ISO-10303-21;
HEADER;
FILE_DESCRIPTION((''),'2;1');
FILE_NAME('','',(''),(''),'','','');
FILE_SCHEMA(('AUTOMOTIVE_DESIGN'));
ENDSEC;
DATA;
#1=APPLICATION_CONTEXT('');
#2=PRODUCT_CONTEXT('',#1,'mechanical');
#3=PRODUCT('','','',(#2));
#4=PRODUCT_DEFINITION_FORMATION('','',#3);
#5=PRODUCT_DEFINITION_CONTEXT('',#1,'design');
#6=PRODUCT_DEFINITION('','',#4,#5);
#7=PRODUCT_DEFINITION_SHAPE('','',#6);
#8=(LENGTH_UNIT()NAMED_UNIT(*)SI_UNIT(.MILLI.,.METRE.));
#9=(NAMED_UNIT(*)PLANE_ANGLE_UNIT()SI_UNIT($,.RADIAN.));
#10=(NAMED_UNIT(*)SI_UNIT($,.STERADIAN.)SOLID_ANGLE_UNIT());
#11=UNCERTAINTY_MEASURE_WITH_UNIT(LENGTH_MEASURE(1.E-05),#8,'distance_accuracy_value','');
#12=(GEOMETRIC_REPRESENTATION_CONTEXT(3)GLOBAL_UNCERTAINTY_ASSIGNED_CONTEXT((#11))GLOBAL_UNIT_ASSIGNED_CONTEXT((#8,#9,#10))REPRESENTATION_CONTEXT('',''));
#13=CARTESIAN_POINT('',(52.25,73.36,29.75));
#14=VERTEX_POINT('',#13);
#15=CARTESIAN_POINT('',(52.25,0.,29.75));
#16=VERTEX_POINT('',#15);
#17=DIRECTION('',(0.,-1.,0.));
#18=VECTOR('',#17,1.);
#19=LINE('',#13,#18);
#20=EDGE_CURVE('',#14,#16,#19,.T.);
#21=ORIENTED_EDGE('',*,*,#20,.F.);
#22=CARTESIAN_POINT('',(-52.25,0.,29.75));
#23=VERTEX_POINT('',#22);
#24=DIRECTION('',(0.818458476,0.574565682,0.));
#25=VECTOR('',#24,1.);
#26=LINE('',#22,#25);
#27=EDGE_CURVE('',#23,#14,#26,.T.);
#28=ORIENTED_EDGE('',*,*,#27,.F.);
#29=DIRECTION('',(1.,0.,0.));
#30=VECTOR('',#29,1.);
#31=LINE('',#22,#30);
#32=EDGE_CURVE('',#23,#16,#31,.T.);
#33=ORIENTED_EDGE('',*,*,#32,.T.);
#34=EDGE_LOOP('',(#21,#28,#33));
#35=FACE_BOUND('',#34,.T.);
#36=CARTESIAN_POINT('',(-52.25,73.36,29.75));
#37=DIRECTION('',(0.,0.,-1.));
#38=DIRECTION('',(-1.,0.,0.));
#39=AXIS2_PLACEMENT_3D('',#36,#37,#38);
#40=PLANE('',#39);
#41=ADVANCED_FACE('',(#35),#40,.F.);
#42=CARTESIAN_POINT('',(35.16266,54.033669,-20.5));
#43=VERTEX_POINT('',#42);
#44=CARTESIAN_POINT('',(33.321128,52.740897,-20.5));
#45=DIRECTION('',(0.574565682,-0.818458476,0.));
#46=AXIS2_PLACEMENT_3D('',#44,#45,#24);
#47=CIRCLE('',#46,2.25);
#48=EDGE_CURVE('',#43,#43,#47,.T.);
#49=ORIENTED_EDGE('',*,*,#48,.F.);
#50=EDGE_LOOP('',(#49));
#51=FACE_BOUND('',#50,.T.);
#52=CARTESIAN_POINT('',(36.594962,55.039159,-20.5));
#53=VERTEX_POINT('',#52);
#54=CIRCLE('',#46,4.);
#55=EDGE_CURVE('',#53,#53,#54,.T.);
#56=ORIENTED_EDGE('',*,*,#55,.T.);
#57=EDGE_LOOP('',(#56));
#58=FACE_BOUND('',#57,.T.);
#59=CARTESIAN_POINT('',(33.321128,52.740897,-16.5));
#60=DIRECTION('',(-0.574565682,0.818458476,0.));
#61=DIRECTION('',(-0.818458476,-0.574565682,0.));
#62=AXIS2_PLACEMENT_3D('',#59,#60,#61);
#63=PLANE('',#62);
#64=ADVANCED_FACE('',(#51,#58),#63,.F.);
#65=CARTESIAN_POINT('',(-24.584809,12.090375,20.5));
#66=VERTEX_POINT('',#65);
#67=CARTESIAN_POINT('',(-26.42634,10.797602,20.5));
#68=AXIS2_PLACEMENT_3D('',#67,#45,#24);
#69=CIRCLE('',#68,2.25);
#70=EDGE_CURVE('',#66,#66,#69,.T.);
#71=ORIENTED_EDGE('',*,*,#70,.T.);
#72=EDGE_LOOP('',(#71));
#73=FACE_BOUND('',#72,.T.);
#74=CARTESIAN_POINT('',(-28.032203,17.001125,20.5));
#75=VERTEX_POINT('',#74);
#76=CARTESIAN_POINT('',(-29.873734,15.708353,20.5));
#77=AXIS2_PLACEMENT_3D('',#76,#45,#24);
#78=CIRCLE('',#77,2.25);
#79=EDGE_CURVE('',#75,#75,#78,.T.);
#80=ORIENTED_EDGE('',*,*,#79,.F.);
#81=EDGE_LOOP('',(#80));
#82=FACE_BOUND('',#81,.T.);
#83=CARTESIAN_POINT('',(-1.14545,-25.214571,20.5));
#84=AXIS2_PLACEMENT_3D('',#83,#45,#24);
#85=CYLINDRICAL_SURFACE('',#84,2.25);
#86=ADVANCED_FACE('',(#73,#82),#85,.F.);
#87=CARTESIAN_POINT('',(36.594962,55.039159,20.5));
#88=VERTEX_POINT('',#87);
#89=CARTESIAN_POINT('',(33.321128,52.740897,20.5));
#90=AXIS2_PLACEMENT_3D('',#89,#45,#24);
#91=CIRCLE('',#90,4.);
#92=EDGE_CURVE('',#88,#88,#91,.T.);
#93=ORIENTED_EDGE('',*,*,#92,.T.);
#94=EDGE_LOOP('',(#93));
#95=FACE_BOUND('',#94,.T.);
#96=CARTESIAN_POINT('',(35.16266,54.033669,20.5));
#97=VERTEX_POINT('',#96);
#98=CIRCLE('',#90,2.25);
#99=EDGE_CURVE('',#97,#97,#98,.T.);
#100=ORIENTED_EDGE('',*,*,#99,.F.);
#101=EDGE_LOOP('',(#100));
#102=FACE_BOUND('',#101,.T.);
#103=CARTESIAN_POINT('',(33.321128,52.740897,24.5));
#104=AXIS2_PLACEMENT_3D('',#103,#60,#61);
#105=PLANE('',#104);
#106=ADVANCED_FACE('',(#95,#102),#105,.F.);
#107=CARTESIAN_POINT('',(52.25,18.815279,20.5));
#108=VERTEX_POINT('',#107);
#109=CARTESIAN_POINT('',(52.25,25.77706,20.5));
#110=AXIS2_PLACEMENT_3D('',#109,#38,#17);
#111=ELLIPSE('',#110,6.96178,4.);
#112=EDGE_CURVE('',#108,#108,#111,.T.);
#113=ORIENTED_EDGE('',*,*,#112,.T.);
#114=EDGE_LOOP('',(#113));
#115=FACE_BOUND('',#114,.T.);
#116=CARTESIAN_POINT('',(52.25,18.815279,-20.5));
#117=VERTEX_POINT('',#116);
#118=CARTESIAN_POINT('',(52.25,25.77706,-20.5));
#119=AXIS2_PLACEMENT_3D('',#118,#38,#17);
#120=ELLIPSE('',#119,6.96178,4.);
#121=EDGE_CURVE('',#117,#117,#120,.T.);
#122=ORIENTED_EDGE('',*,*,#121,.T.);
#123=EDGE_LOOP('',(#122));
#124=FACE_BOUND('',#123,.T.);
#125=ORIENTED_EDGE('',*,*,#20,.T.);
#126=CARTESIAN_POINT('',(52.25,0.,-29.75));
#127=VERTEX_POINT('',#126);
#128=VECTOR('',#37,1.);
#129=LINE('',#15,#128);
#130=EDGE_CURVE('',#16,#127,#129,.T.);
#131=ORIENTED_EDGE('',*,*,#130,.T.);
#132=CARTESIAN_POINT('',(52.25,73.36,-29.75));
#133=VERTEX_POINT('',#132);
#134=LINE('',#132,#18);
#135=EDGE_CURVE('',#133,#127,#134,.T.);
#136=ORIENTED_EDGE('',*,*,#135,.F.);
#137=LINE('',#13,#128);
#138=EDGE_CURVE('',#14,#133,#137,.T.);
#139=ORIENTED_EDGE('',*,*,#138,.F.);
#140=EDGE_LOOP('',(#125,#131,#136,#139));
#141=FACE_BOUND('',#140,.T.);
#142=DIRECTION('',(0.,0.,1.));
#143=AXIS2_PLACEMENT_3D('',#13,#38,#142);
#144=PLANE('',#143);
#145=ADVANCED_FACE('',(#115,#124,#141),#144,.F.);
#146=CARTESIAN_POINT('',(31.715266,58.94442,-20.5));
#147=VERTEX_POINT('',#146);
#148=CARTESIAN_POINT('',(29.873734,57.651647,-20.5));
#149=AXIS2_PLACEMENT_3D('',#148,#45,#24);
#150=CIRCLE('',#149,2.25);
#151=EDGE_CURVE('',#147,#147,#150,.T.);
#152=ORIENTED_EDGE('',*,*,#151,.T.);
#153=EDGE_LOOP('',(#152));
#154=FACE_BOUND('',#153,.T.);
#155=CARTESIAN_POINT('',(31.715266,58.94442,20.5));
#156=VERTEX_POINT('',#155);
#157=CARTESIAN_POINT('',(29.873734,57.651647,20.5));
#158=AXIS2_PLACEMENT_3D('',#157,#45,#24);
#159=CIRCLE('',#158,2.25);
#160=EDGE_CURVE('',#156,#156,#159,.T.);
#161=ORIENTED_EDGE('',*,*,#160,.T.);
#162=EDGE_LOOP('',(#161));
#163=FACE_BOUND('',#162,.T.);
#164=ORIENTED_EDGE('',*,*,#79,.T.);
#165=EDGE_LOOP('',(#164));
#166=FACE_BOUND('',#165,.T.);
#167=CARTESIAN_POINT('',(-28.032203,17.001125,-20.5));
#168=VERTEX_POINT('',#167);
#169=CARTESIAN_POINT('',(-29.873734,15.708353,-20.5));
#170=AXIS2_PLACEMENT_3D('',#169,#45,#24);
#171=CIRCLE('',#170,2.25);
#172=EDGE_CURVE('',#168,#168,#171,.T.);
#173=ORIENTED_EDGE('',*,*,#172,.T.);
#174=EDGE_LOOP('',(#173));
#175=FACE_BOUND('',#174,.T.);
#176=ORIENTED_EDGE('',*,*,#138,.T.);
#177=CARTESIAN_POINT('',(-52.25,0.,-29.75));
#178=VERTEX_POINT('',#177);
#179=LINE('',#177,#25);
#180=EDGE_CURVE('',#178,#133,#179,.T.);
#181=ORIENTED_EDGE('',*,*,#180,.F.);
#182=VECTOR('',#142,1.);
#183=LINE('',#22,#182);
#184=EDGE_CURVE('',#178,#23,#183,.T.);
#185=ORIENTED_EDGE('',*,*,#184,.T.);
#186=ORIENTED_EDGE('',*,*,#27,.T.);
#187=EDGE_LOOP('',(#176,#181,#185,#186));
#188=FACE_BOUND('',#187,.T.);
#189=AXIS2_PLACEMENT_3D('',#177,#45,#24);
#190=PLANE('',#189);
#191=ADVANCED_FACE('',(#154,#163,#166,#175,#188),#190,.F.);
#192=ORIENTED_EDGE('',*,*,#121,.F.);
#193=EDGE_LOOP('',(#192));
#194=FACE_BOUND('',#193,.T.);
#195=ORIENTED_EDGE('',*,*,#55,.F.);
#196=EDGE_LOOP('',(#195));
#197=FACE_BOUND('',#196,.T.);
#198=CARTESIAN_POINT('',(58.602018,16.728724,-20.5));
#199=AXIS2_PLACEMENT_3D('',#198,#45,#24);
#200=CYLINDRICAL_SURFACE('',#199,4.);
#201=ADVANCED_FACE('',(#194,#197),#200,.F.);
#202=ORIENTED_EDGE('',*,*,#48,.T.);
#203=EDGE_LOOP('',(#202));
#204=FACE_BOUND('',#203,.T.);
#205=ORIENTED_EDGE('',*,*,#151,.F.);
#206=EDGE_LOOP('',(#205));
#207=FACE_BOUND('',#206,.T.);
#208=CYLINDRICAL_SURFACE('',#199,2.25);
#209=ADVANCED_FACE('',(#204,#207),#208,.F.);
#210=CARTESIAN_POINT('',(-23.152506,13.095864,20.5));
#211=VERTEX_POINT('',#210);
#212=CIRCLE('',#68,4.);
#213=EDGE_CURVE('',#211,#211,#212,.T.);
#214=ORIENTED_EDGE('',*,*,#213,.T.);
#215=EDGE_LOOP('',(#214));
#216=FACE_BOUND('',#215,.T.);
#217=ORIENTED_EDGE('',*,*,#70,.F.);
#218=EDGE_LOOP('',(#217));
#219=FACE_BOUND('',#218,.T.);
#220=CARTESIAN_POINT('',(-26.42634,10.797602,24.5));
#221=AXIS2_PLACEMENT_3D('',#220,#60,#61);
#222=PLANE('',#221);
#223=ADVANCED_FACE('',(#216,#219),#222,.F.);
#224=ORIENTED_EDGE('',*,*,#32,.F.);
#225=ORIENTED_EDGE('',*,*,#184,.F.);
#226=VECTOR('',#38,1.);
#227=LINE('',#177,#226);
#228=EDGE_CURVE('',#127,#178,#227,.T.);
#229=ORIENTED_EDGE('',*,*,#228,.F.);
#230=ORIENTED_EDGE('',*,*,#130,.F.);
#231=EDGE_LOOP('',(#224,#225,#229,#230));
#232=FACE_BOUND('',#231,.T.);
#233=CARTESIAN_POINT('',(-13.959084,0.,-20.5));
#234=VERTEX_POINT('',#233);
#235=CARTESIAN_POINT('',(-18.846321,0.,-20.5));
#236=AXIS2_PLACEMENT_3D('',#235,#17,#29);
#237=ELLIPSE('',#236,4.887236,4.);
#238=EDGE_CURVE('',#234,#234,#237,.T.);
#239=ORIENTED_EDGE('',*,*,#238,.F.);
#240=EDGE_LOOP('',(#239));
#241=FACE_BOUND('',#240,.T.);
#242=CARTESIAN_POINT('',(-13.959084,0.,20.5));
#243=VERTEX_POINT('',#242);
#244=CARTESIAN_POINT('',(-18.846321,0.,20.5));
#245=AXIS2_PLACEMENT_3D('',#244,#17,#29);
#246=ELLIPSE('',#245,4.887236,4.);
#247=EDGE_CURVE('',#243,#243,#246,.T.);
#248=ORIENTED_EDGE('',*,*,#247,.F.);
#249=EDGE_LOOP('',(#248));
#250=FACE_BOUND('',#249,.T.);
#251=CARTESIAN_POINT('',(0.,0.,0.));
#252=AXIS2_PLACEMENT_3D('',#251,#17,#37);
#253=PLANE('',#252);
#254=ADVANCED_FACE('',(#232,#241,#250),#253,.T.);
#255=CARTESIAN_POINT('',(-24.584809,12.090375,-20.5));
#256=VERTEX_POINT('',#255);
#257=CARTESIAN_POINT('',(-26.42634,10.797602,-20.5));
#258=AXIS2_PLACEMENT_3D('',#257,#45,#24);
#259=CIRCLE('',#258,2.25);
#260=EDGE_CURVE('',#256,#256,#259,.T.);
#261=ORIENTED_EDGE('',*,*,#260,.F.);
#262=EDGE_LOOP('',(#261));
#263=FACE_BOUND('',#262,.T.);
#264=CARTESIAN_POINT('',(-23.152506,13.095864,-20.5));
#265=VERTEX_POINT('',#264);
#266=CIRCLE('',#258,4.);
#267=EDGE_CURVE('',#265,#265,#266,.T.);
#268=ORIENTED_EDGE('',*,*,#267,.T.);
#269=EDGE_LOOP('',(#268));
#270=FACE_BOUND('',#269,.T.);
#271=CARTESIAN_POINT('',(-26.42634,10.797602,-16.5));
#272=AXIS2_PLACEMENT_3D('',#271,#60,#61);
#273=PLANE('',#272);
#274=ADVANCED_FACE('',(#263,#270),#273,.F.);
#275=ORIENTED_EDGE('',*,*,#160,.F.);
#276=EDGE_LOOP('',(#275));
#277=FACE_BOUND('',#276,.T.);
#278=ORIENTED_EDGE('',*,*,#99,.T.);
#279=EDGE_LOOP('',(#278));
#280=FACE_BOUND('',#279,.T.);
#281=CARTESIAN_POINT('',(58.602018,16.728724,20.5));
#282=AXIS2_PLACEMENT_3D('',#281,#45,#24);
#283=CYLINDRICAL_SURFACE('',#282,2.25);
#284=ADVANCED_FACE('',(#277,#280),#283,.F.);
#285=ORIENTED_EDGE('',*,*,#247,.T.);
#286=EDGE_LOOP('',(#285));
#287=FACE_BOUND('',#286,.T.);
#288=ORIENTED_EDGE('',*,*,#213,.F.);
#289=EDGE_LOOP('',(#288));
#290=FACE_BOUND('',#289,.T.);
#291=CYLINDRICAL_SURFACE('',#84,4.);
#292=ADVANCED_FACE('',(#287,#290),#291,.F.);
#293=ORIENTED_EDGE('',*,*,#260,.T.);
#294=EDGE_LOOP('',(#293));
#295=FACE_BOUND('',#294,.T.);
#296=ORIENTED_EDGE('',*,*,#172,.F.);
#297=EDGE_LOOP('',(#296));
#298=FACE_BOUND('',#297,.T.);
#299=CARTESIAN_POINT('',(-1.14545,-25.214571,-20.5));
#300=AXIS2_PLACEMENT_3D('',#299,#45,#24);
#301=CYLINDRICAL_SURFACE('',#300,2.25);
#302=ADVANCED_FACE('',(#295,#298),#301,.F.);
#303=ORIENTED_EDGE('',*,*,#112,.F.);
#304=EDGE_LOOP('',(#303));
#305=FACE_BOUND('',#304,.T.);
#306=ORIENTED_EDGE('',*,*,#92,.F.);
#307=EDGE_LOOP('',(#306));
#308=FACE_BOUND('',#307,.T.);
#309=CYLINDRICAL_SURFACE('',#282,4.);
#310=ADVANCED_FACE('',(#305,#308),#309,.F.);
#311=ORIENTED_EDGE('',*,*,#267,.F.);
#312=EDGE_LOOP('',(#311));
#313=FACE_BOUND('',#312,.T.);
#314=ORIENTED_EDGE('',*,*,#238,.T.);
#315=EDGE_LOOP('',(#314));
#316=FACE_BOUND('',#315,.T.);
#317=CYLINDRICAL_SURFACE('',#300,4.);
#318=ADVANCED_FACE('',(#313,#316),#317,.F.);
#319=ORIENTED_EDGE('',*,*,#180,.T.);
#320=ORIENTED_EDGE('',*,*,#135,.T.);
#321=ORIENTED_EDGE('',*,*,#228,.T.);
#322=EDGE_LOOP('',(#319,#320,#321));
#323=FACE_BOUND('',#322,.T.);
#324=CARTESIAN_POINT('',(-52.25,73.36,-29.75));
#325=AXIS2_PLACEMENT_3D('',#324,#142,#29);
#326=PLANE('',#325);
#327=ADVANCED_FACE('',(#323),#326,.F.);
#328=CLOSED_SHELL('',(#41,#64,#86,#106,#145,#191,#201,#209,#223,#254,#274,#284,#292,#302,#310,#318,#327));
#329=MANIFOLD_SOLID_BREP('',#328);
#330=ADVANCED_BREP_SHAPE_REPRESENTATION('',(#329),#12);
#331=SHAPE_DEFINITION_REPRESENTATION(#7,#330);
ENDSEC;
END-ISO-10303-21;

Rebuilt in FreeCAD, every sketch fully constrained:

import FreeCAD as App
import Part
import Sketcher

V = App.Vector

doc = App.newDocument("Part")
params = doc.addObject("Spreadsheet::Sheet", "Params")
for row, (alias, value) in enumerate([
    ("sketch1_width", "104.5 mm"),
    ("sketch1_height", "59.5 mm"),
    ("pad1_length", "73.36 mm"),
    ("sketch2_width", "104.5 mm"),
    ("sketch2_height", "73.36 mm"),
    ("sketch3_length", "1.75 mm"),
    ("sketch3_length2", "2.25 mm"),
    ("groove_angle", "360 deg"),
    ("linearpattern_pitch", "73 mm"),
    ("linearpattern2_pitch", "83.725743 mm"),
    ("linearpattern3_pitch", "41 mm"),
], start=1):
    params.set(f"A{row}", alias)
    params.set(f"B{row}", "=" + value)
    params.setAlias(f"B{row}", alias)

body = doc.addObject("PartDesign::Body", "Body")

sketch1 = body.newObject("Sketcher::SketchObject", "Sketch")
sketch1.AttachmentSupport = (doc.getObject("XZ_Plane"), [""])
sketch1.MapMode = "FlatFace"
sketch1.addGeometry([
    Part.LineSegment(V(-52.25, -29.75, 0), V(-52.25, 29.75, 0)),
    Part.LineSegment(V(-52.25, 29.75, 0), V(52.25, 29.75, 0)),
    Part.LineSegment(V(52.25, 29.75, 0), V(52.25, -29.75, 0)),
    Part.LineSegment(V(52.25, -29.75, 0), V(-52.25, -29.75, 0)),
], False)
sketch1.addConstraint([
    Sketcher.Constraint("Coincident", 0, 2, 1, 1),
    Sketcher.Constraint("Coincident", 1, 2, 2, 1),
    Sketcher.Constraint("Coincident", 2, 2, 3, 1),
    Sketcher.Constraint("Coincident", 3, 2, 0, 1),
    Sketcher.Constraint("Vertical", 0),
    Sketcher.Constraint("Horizontal", 1),
    Sketcher.Constraint("Vertical", 2),
    Sketcher.Constraint("Horizontal", 3),
    Sketcher.Constraint("Symmetric", 0, 2, 2, 2, -1, 1),
    Sketcher.Constraint("DistanceX", 1, 1, 1, 2, 104.5),
    Sketcher.Constraint("DistanceY", 0, 1, 0, 2, 59.5),
])
sketch1.setExpression("Constraints[9]", "Params.sketch1_width")
sketch1.setExpression("Constraints[10]", "Params.sketch1_height")
pad1 = body.newObject("PartDesign::Pad", "Pad")
pad1.Profile = sketch1
pad1.setExpression("Length", "Params.pad1_length")
pad1.Reversed = True

sketch2 = body.newObject("Sketcher::SketchObject", "Sketch001")
sketch2.AttachmentSupport = (doc.getObject("XY_Plane"), [""])
sketch2.MapMode = "FlatFace"
sketch2.AttachmentOffset = App.Placement(V(0, 0, 29.75), App.Rotation())
sketch2.addGeometry([
    Part.LineSegment(V(-52.25, 0, 0), V(52.25, 73.36, 0)),
    Part.LineSegment(V(52.25, 73.36, 0), V(-52.25, 73.36, 0)),
    Part.LineSegment(V(-52.25, 73.36, 0), V(-52.25, 0, 0)),
], False)
sketch2.addConstraint([
    Sketcher.Constraint("Coincident", 0, 2, 1, 1),
    Sketcher.Constraint("Coincident", 1, 2, 2, 1),
    Sketcher.Constraint("Coincident", 2, 2, 0, 1),
    Sketcher.Constraint("Horizontal", 1),
    Sketcher.Constraint("Vertical", 2),
    Sketcher.Constraint("PointOnObject", 2, 2, -1),
    Sketcher.Constraint("DistanceX", 1, 2, 1, 1, 104.5),
    Sketcher.Constraint("DistanceY", 2, 2, 2, 1, 73.36),
    Sketcher.Constraint("DistanceX", -1, 1, 0, 2, 52.25),
])
sketch2.setExpression("Constraints[6]", "Params.sketch2_width")
sketch2.setExpression("Constraints[7]", "Params.sketch2_height")
pocket1 = body.newObject("PartDesign::Pocket", "Pocket")
pocket1.Profile = sketch2
pocket1.Type = "ThroughAll"

sketch3 = body.newObject("Sketcher::SketchObject", "Sketch002")
sketch3.AttachmentSupport = (doc.getObject("XY_Plane"), [""])
sketch3.MapMode = "FlatFace"
sketch3.AttachmentOffset = App.Placement(V(0, 0, -20.5), App.Rotation())
sketch3.addGeometry([
    Part.LineSegment(V(-64.371872, 64.85033, 0), V(-1.14545, -25.214571, 0)),
    Part.LineSegment(V(-1.14545, -25.214571, 0), V(2.148845, -22.901944, 0)),
    Part.LineSegment(V(2.148845, -22.901944, 0), V(2.116331, -22.899139, 0)),
    Part.LineSegment(V(2.116331, -22.899139, 0), V(-23.152506, 13.095864, 0)),
    Part.LineSegment(V(-23.152506, 13.095864, 0), V(-24.584809, 12.090375, 0)),
    Part.LineSegment(V(-24.584809, 12.090375, 0), V(-62.530341, 66.143102, 0)),
    Part.LineSegment(V(-62.530341, 66.143102, 0), V(-64.371872, 64.85033, 0)),
], False)
sketch3.addGeometry(Part.LineSegment(V(-1.14545, -25.214571, 0), V(-64.371872, 64.85033, 0)), True)
sketch3.addConstraint([
    Sketcher.Constraint("Coincident", 0, 2, 1, 1),
    Sketcher.Constraint("Coincident", 1, 2, 2, 1),
    Sketcher.Constraint("Coincident", 2, 2, 3, 1),
    Sketcher.Constraint("Coincident", 3, 2, 4, 1),
    Sketcher.Constraint("Coincident", 4, 2, 5, 1),
    Sketcher.Constraint("Coincident", 5, 2, 6, 1),
    Sketcher.Constraint("Coincident", 6, 2, 0, 1),
    Sketcher.Constraint("Coincident", 7, 1, 0, 2),
    Sketcher.Constraint("Coincident", 7, 2, 6, 2),
    Sketcher.Constraint("Perpendicular", 0, 1),
    Sketcher.Constraint("Perpendicular", 1, 3),
    Sketcher.Constraint("Perpendicular", 3, 4),
    Sketcher.Constraint("Perpendicular", 4, 5),
    Sketcher.Constraint("Perpendicular", 5, 6),
    Sketcher.Constraint("Distance", 4, 1.75),
    Sketcher.Constraint("Distance", 6, 2.25),
    Sketcher.Constraint("Distance", 1, 4.025),
    Sketcher.Constraint("DistanceY", 0, 2, 6, 2, 90.064901),
    Sketcher.Constraint("DistanceX", 0, 2, -1, 1, 1.14545),
    Sketcher.Constraint("DistanceY", 0, 2, -1, 1, 25.214571),
    Sketcher.Constraint("DistanceX", -1, 1, 2, 2, 2.116331),
    Sketcher.Constraint("DistanceX", 4, 2, -1, 1, 24.584809),
    Sketcher.Constraint("DistanceX", 5, 2, -1, 1, 62.530341),
])
sketch3.setExpression("Constraints[14]", "Params.sketch3_length")
sketch3.setExpression("Constraints[15]", "Params.sketch3_length2")
groove = body.newObject("PartDesign::Groove", "Groove")
groove.Profile = sketch3
groove.ReferenceAxis = (sketch3, ["Axis0"])
groove.setExpression("Angle", "Params.groove_angle")
doc.recompute()

datumline = body.newObject("PartDesign::Line", "DatumLine")
datumline.Placement = App.Placement(V(0, 0, 0), App.Rotation(V(0, 0, 1), V(0.818458476, 0.574565682, 0)))
linearpattern = body.newObject("PartDesign::LinearPattern", "LinearPattern")
linearpattern.Originals = [groove]
linearpattern.Direction = (datumline, [""])
linearpattern.Mode = "offset"
linearpattern.setExpression("Offset", "Params.linearpattern_pitch")
linearpattern.Occurrences = 2
body.Tip = linearpattern
doc.recompute()

datumline2 = body.newObject("PartDesign::Line", "DatumLine001")
datumline2.Placement = App.Placement(V(0, 0, 0), App.Rotation(V(0, 0, 1), V(0.713609301, 0.500960558, 0.489694073)))
linearpattern2 = body.newObject("PartDesign::LinearPattern", "LinearPattern001")
linearpattern2.Originals = [groove]
linearpattern2.Direction = (datumline2, [""])
linearpattern2.Mode = "offset"
linearpattern2.setExpression("Offset", "Params.linearpattern2_pitch")
linearpattern2.Occurrences = 2
body.Tip = linearpattern2
doc.recompute()

linearpattern3 = body.newObject("PartDesign::LinearPattern", "LinearPattern002")
linearpattern3.Originals = [groove]
linearpattern3.Direction = (doc.getObject("Z_Axis"), [""])
linearpattern3.Mode = "offset"
linearpattern3.setExpression("Offset", "Params.linearpattern3_pitch")
linearpattern3.Occurrences = 2
body.Tip = linearpattern3

doc.recompute()
